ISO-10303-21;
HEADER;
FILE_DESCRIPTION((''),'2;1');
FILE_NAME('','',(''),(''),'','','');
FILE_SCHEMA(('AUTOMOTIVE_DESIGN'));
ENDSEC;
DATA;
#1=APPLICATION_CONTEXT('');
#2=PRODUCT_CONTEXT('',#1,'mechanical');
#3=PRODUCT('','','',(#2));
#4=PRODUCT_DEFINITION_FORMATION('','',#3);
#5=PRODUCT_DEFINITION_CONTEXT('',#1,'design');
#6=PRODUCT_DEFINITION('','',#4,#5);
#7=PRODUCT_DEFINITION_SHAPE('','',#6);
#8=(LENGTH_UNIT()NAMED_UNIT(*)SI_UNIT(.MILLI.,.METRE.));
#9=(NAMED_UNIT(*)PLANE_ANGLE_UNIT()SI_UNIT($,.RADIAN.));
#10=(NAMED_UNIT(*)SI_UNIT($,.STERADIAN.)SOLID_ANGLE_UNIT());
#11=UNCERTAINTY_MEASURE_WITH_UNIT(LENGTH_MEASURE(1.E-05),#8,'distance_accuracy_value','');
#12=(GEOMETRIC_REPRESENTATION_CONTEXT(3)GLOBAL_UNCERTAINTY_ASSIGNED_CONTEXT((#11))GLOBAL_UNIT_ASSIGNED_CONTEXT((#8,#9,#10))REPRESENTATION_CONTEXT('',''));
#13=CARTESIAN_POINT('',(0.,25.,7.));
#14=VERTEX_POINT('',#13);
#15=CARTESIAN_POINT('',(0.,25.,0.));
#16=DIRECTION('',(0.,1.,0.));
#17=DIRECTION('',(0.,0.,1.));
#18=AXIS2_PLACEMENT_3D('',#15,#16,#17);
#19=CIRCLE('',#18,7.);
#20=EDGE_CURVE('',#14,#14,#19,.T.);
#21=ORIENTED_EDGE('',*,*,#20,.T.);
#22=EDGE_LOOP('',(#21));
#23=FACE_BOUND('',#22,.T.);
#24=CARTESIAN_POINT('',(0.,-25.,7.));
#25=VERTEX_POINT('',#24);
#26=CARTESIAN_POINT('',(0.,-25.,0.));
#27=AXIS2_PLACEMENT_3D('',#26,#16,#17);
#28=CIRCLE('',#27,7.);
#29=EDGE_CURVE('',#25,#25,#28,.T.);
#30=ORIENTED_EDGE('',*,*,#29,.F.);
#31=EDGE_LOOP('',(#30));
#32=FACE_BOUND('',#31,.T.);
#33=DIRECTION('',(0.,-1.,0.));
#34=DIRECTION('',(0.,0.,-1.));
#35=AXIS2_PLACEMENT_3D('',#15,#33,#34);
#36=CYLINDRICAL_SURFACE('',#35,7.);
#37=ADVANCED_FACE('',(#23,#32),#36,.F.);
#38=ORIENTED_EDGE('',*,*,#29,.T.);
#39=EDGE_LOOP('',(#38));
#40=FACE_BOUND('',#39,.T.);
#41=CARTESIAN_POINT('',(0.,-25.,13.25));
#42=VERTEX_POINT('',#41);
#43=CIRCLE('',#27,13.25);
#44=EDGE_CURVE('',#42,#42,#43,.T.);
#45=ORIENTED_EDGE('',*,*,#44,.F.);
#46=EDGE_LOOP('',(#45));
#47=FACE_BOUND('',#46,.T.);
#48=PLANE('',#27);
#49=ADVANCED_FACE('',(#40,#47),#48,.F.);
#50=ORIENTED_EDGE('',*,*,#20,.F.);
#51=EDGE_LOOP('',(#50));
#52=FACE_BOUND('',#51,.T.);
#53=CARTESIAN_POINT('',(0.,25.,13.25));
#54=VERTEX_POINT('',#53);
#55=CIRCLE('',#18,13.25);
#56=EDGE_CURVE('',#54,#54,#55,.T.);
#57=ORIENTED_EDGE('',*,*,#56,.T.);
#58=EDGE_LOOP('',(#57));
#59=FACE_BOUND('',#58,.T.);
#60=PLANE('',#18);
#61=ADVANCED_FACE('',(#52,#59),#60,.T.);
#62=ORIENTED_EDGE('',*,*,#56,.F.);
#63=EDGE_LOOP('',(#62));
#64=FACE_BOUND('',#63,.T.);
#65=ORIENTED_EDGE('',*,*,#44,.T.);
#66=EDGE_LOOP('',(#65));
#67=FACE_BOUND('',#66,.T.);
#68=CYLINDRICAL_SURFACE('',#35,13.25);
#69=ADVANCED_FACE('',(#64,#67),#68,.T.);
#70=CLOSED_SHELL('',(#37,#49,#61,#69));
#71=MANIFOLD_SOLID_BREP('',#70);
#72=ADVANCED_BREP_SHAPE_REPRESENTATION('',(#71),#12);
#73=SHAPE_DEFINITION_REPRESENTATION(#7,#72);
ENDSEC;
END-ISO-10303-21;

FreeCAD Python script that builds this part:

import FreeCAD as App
import Part
import Sketcher

doc = App.newDocument("Part")
params = doc.addObject("Spreadsheet::Sheet", "Params")
for row, (alias, value) in enumerate([
    ("sketch1_diameter", "14 mm"),
    ("sketch1_diameter2", "26.5 mm"),
    ("pad1_length", "50 mm"),
], start=1):
    params.set(f"A{row}", alias)
    params.set(f"B{row}", "=" + value)
    params.setAlias(f"B{row}", alias)

body = doc.addObject("PartDesign::Body", "Body")

# Sketch on XZ plane
sketch1 = doc.addObject("Sketcher::SketchObject", "Sketch")
body.addObject(sketch1)
sketch1.AttachmentSupport = (doc.XZ_Plane, [""])
sketch1.MapMode = "FlatFace"
sketch1.addGeometry(Part.Circle(App.Vector(0, 0, 0), App.Vector(0, 0, 1), 13.25), False)
sketch1.addGeometry(Part.Circle(App.Vector(0, 0, 0), App.Vector(0, 0, 1), 7), False)
sketch1.addConstraint(Sketcher.Constraint("Coincident", 0, 3, -1, 1))
sketch1.addConstraint(Sketcher.Constraint("Coincident", 1, 3, -1, 1))
sketch1.addConstraint(Sketcher.Constraint("Diameter", 1, 14.0))
sketch1.addConstraint(Sketcher.Constraint("Diameter", 0, 26.5))
sketch1.setExpression("Constraints[2]", "Params.sketch1_diameter")
sketch1.setExpression("Constraints[3]", "Params.sketch1_diameter2")
pad1 = doc.addObject("PartDesign::Pad", "Pad")
body.addObject(pad1)
pad1.Profile = sketch1
pad1.setExpression("Length", "Params.pad1_length")
pad1.Midplane = True

doc.recompute()
